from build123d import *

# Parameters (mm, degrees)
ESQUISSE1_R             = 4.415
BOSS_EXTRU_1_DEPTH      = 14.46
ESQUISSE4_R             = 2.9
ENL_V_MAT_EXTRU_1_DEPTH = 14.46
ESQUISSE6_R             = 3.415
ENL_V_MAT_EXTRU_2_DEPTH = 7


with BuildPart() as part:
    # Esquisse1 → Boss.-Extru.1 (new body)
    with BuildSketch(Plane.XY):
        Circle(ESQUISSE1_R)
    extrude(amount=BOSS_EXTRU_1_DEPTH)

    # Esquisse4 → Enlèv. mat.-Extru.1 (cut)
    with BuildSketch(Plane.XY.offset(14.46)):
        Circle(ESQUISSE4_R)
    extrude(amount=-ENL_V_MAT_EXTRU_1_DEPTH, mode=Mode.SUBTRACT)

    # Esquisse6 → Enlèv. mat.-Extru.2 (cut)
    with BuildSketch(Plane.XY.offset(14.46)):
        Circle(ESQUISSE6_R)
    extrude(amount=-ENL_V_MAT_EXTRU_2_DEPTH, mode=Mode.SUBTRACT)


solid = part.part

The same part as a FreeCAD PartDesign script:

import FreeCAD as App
import Part
import Sketcher

doc = App.newDocument("Part")
body = doc.addObject("PartDesign::Body", "Body")

# Sketch on XY plane
sketch1 = doc.addObject("Sketcher::SketchObject", "Sketch")
body.addObject(sketch1)
sketch1.AttachmentSupport = (doc.XY_Plane, [""])
sketch1.MapMode = "FlatFace"
sketch1.addGeometry(Part.Circle(App.Vector(0, 0, 0), App.Vector(0, 0, 1), 4.4), False)
sketch1.addConstraint([
    Sketcher.Constraint("Coincident", 0, 3, -1, 1),
    Sketcher.Constraint("Diameter", 0, 8.83),
])
pad1 = doc.addObject("PartDesign::Pad", "Pad")
body.addObject(pad1)
pad1.Profile = sketch1
pad1.Length = 14.46

# Sketch on XY plane
sketch2 = doc.addObject("Sketcher::SketchObject", "Sketch001")
body.addObject(sketch2)
sketch2.AttachmentSupport = (doc.XY_Plane, [""])
sketch2.MapMode = "FlatFace"
sketch2.AttachmentOffset = App.Placement(App.Vector(0, 0, 14.46), App.Rotation())
sketch2.addGeometry(Part.Circle(App.Vector(0, 0, 0), App.Vector(0, 0, 1), 2.9), False)
sketch2.addConstraint([
    Sketcher.Constraint("Coincident", 0, 3, -1, 1),
    Sketcher.Constraint("Diameter", 0, 5.8),
])
pocket1 = doc.addObject("PartDesign::Pocket", "Pocket")
body.addObject(pocket1)
pocket1.Profile = sketch2
pocket1.Length = 14.46

# Sketch on XY plane
sketch3 = doc.addObject("Sketcher::SketchObject", "Sketch002")
body.addObject(sketch3)
sketch3.AttachmentSupport = (doc.XY_Plane, [""])
sketch3.MapMode = "FlatFace"
sketch3.AttachmentOffset = App.Placement(App.Vector(0, 0, 14.46), App.Rotation())
sketch3.addGeometry(Part.Circle(App.Vector(0, 0, 0), App.Vector(0, 0, 1), 3.4), False)
sketch3.addConstraint([
    Sketcher.Constraint("Coincident", 0, 3, -1, 1),
    Sketcher.Constraint("Diameter", 0, 6.83),
])
pocket2 = doc.addObject("PartDesign::Pocket", "Pocket001")
body.addObject(pocket2)
pocket2.Profile = sketch3
pocket2.Length = 7

doc.recompute()
